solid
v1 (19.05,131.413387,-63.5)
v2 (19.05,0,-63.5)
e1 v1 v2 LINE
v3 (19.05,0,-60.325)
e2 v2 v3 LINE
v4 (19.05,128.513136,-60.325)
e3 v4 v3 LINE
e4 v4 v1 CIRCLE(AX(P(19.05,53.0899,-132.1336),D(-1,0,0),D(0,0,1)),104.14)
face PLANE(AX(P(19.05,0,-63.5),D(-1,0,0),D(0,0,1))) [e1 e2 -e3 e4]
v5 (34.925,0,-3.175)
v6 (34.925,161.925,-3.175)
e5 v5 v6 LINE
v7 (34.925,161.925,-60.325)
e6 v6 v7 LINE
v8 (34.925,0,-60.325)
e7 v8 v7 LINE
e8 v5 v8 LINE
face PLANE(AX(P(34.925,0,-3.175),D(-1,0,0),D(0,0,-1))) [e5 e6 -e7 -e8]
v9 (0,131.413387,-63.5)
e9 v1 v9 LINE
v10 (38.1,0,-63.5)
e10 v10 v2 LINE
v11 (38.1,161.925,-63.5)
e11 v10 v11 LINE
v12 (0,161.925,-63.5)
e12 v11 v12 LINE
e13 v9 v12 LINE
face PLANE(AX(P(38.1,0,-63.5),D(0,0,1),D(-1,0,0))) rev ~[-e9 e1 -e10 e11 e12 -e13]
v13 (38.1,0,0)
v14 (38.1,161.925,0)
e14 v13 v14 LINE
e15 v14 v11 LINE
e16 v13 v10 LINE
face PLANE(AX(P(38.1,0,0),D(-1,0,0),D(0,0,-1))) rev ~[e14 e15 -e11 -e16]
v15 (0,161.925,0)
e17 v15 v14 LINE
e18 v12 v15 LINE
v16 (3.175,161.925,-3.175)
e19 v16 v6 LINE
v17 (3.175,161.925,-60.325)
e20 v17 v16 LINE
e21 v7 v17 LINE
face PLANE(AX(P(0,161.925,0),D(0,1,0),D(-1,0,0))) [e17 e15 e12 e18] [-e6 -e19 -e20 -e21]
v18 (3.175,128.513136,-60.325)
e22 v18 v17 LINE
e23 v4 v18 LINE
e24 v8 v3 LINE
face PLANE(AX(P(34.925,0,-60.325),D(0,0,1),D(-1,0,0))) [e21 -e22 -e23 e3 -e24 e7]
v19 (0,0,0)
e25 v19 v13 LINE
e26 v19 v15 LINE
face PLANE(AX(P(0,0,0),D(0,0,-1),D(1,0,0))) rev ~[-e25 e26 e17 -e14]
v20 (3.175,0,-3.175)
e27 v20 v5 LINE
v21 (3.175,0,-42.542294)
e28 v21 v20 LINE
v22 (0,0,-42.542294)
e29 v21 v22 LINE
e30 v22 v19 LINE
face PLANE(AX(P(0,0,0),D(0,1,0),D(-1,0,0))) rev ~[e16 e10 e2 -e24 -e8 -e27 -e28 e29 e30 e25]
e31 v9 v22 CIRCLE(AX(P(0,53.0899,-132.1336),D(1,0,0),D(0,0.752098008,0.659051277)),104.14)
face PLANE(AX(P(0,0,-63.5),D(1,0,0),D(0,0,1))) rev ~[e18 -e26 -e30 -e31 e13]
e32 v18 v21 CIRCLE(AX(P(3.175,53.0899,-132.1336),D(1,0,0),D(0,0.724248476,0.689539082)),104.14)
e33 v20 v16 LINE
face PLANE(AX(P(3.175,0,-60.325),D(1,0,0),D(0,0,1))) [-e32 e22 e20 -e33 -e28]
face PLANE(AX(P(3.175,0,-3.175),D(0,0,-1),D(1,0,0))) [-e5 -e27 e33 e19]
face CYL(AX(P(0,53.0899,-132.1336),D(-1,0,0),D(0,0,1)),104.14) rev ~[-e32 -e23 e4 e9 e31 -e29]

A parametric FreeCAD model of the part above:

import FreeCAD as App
import Part
import Sketcher
Q = App.Units.Quantity


def add_polygon(sketch, points):
    """Adds a closed chain of lines whose ends are joined by coincident constraints."""
    first, n = sketch.GeometryCount, len(points)
    for a, b in zip(points, points[1:] + points[:1]):
        sketch.addGeometry(Part.LineSegment(App.Vector(*a, 0), App.Vector(*b, 0)), False)
    for i in range(n):
        sketch.addConstraint(Sketcher.Constraint("Coincident", first + i, 2, first + (i + 1) % n, 1))

doc = App.newDocument("Part")
body = doc.addObject("PartDesign::Body", "Body")

sketch1 = body.newObject("Sketcher::SketchObject", "Sketch")
sketch1.AttachmentSupport = (doc.getObject("XZ_Plane"), [""])
sketch1.MapMode = "FlatFace"
add_polygon(sketch1, [(0, -63.5), (0, 0), (38.1, 0), (38.1, -63.5)])
add_polygon(sketch1, [(34.925, -3.175), (3.175, -3.175), (3.175, -60.325), (34.925, -60.325)])
sketch1.addConstraint([
    Sketcher.Constraint("Vertical", 0),
    Sketcher.Constraint("Horizontal", 1),
    Sketcher.Constraint("Vertical", 2),
    Sketcher.Constraint("Horizontal", 3),
    Sketcher.Constraint("Horizontal", 4),
    Sketcher.Constraint("Vertical", 5),
    Sketcher.Constraint("Horizontal", 6),
    Sketcher.Constraint("Vertical", 7),
    Sketcher.Constraint("Coincident", 0, 2, -1, 1),
    Sketcher.Constraint("DistanceX", 1, 1, 1, 2, Q("1.5 in")),
    Sketcher.Constraint("DistanceY", 0, 1, 0, 2, Q("2.5 in")),
    Sketcher.Constraint("DistanceX", -1, 1, 4, 2, Q("0.125 in")),
    Sketcher.Constraint("DistanceY", 4, 2, -1, 1, Q("0.125 in")),
    Sketcher.Constraint("DistanceY", 3, 2, 5, 2, Q("0.125 in")),
    Sketcher.Constraint("DistanceX", 6, 2, 2, 2, Q("0.125 in")),
])
pad1 = body.newObject("PartDesign::Pad", "Pad")
pad1.Profile = sketch1
pad1.Length = Q("6.375 in")
pad1.Reversed = True

sketch2 = body.newObject("Sketcher::SketchObject", "Sketch001")
sketch2.AttachmentSupport = (doc.getObject("YZ_Plane"), [""])
sketch2.MapMode = "FlatFace"
sketch2.addGeometry(Part.Circle(App.Vector(53.0899, -132.1336, 0), App.Vector(0, 0, 1), 104.14), False)
sketch2.addConstraint([
    Sketcher.Constraint("Diameter", 0, Q("8.2 in")),
    Sketcher.Constraint("DistanceY", 0, 3, -1, 1, Q("5.2021 in")),
    Sketcher.Constraint("DistanceX", -1, 1, 0, 3, Q("53.09 mm")),
])
pocket1 = body.newObject("PartDesign::Pocket", "Pocket")
pocket1.Profile = sketch2
pocket1.Length = Q("0.75 in")
pocket1.Reversed = True

doc.recompute()
